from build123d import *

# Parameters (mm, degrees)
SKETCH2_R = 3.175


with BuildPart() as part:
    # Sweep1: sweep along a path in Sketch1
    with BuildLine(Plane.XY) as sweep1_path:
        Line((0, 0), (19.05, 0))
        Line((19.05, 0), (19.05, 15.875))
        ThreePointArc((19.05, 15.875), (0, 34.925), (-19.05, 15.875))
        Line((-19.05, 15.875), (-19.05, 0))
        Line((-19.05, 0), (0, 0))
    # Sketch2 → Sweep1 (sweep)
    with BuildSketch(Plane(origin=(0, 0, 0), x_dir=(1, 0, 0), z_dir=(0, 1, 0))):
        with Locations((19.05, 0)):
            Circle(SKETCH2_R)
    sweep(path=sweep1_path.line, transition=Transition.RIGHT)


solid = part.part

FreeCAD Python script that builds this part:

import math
import FreeCAD as App
import Part
import Sketcher
Q = App.Units.Quantity

doc = App.newDocument("Part")
body = doc.addObject("PartDesign::Body", "Body")

sketch1 = doc.addObject("Sketcher::SketchObject", "Sketch")
body.addObject(sketch1)
sketch1.AttachmentSupport = (doc.XZ_Plane, [""])
sketch1.MapMode = "FlatFace"
sketch1.addGeometry(Part.Circle(App.Vector(19.05, 0, 0), App.Vector(0, 0, 1), 3.175), False)
sketch1.addConstraint([
    Sketcher.Constraint("PointOnObject", 0, 3, -1),
    Sketcher.Constraint("Diameter", 0, Q("0.25 in")),
    Sketcher.Constraint("DistanceX", -1, 1, 0, 3, Q("0.75 in")),
])

sketch2 = doc.addObject("Sketcher::SketchObject", "Sketch001")
body.addObject(sketch2)
sketch2.AttachmentSupport = (doc.XY_Plane, [""])
sketch2.MapMode = "FlatFace"
sketch2.addGeometry([
    Part.LineSegment(App.Vector(19.05, 0, 0), App.Vector(19.05, 15.875, 0)),
    Part.ArcOfCircle(Part.Circle(App.Vector(0, 15.875, 0), App.Vector(0, 0, 1), 19.05), math.radians(0), math.radians(180)),
    Part.LineSegment(App.Vector(-19.05, 15.875, 0), App.Vector(-19.05, 0, 0)),
    Part.LineSegment(App.Vector(-19.05, 0, 0), App.Vector(19.05, 0, 0)),
], False)
sketch2.addConstraint([
    Sketcher.Constraint("Tangent", 0, 2, 1, 1),
    Sketcher.Constraint("Tangent", 1, 2, 2, 1),
    Sketcher.Constraint("Coincident", 2, 2, 3, 1),
    Sketcher.Constraint("Coincident", 3, 2, 0, 1),
    Sketcher.Constraint("Vertical", 0),
    Sketcher.Constraint("Vertical", 2),
    Sketcher.Constraint("Horizontal", 3),
    Sketcher.Constraint("Symmetric", 2, 2, 3, 2, -1, 1),
    Sketcher.Constraint("Radius", 1, Q("0.75 in")),
    Sketcher.Constraint("DistanceY", 0, 1, 0, 2, Q("0.625 in")),
])
doc.recompute()

additivepipe = doc.addObject("PartDesign::AdditivePipe", "AdditivePipe")
body.addObject(additivepipe)
additivepipe.Profile = sketch1
additivepipe.Spine = (sketch2, ["Edge1", "Edge2", "Edge3", "Edge4"])
additivepipe.Transition = "Right corner"

doc.recompute()
